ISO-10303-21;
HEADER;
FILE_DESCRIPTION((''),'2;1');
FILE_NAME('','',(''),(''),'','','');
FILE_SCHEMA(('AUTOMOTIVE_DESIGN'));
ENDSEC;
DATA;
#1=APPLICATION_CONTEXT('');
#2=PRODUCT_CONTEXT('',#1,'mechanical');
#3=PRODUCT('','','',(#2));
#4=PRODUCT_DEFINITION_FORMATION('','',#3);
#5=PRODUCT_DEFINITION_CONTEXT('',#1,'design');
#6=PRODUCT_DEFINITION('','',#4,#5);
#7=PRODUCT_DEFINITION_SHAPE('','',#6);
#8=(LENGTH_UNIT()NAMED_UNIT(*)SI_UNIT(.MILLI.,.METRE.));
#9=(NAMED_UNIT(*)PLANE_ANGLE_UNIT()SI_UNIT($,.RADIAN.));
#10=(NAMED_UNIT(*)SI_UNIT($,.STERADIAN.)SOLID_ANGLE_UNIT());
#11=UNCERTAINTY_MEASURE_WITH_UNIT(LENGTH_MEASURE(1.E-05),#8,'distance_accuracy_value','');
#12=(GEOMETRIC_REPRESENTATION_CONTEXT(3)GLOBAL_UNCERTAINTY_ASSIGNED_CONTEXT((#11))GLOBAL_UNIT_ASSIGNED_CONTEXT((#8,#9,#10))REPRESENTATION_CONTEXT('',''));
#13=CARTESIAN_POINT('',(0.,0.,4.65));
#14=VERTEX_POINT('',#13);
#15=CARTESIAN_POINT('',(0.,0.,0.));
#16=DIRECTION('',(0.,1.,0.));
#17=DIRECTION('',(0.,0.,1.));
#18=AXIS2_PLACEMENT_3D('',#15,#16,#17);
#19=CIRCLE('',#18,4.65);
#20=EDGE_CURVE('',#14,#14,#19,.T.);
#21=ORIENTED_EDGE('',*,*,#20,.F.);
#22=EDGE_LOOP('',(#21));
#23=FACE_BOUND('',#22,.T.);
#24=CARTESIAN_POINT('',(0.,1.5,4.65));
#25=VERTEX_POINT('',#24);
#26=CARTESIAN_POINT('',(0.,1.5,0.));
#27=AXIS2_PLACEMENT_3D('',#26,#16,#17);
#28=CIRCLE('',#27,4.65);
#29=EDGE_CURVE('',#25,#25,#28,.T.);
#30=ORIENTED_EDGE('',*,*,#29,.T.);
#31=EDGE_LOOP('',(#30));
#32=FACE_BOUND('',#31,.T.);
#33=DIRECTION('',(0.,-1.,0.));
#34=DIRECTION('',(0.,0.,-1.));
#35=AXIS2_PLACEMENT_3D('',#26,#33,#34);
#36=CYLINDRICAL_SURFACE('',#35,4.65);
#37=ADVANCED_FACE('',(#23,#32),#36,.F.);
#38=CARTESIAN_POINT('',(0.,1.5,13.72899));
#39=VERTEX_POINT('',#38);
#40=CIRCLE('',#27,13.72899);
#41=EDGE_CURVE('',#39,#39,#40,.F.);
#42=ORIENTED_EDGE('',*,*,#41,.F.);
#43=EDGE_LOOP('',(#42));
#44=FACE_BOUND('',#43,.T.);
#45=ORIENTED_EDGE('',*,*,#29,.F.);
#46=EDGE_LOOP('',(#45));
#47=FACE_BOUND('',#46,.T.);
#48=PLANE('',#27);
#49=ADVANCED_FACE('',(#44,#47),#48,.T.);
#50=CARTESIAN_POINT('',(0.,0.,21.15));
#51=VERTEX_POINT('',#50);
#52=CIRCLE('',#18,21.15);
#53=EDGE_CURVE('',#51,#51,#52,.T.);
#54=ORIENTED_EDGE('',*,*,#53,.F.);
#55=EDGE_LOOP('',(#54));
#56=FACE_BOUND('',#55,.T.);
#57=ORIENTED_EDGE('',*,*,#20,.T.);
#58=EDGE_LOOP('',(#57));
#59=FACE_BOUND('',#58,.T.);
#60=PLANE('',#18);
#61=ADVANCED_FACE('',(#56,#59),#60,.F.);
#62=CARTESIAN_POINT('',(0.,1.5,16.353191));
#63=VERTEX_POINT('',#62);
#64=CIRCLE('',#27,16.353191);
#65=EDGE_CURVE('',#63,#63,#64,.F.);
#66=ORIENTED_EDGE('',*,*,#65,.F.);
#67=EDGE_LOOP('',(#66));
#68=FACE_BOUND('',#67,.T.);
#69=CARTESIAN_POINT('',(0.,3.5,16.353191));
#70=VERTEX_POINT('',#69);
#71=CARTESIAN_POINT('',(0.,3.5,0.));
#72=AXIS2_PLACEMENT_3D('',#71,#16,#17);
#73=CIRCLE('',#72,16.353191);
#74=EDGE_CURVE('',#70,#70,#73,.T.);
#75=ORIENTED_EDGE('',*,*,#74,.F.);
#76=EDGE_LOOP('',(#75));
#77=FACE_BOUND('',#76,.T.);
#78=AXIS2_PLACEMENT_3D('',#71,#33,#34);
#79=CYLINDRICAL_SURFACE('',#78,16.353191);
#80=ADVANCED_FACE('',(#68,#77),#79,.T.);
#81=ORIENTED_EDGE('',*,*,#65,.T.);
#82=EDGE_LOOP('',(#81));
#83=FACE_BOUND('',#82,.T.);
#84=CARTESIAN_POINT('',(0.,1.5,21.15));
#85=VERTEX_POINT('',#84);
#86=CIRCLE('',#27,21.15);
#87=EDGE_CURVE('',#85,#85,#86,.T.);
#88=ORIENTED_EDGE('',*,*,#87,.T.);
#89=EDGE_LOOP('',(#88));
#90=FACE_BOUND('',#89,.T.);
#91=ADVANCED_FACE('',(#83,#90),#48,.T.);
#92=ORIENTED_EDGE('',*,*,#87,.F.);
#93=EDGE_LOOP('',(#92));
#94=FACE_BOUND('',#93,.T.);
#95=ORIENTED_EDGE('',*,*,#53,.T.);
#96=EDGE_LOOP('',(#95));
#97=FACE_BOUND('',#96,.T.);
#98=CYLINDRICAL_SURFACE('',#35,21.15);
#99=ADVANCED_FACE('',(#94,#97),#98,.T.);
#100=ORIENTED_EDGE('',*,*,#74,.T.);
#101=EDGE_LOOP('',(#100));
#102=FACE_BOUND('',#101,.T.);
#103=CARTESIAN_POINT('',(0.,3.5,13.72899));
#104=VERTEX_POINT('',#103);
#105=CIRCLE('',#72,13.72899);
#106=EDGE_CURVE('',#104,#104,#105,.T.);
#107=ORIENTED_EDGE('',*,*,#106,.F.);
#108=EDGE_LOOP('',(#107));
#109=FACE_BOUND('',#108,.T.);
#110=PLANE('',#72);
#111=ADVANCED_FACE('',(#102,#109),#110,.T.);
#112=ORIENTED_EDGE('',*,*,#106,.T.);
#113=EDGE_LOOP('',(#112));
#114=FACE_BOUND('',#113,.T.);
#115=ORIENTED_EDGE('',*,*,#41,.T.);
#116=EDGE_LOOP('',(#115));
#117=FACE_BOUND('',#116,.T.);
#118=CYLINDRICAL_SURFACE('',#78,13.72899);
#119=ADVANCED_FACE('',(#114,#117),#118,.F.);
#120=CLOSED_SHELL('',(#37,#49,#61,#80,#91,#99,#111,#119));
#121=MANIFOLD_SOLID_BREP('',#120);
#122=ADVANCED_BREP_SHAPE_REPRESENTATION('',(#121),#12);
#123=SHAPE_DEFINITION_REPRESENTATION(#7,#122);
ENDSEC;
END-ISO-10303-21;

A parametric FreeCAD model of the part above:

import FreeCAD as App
import Part
import Sketcher
from FreeCAD import Vector

doc = App.newDocument("Part")
body = doc.addObject("PartDesign::Body", "Body")

# Sketch on XZ plane
sketch1 = body.newObject("Sketcher::SketchObject", "Sketch")
sketch1.AttachmentSupport = (doc.getObject("XZ_Plane"), [""])
sketch1.MapMode = "FlatFace"
sketch1.addGeometry(Part.Circle(Vector(0, 0, 0), Vector(0, 0, 1), 21.1), False)
sketch1.addGeometry(Part.Circle(Vector(0, 0, 0), Vector(0, 0, 1), 4.7), False)
sketch1.addConstraint(Sketcher.Constraint("Coincident", 0, 3, -1, 1))
sketch1.addConstraint(Sketcher.Constraint("Coincident", 1, 3, -1, 1))
sketch1.addConstraint(Sketcher.Constraint("Diameter", 0, 42.3))
sketch1.addConstraint(Sketcher.Constraint("Diameter", 1, 9.3))
pad1 = body.newObject("PartDesign::Pad", "Pad")
pad1.Profile = sketch1
pad1.Length = 1.5
pad1.Reversed = True

# Sketch on XZ plane
sketch2 = body.newObject("Sketcher::SketchObject", "Sketch001")
sketch2.AttachmentSupport = (doc.getObject("XZ_Plane"), [""])
sketch2.MapMode = "FlatFace"
sketch2.addGeometry(Part.Circle(Vector(0, 0, 0), Vector(0, 0, 1), 16), False)
sketch2.addGeometry(Part.Circle(Vector(0, 0, 0), Vector(0, 0, 1), 14), False)
sketch2.addConstraint(Sketcher.Constraint("Coincident", 0, 3, -1, 1))
sketch2.addConstraint(Sketcher.Constraint("Coincident", 1, 3, -1, 1))
sketch2.addConstraint(Sketcher.Constraint("Diameter", 0, 32.706381))
sketch2.addConstraint(Sketcher.Constraint("Diameter", 1, 27.457981))
pad2 = body.newObject("PartDesign::Pad", "Pad001")
pad2.Profile = sketch2
pad2.Length = 3.5
pad2.Reversed = True

doc.recompute()
